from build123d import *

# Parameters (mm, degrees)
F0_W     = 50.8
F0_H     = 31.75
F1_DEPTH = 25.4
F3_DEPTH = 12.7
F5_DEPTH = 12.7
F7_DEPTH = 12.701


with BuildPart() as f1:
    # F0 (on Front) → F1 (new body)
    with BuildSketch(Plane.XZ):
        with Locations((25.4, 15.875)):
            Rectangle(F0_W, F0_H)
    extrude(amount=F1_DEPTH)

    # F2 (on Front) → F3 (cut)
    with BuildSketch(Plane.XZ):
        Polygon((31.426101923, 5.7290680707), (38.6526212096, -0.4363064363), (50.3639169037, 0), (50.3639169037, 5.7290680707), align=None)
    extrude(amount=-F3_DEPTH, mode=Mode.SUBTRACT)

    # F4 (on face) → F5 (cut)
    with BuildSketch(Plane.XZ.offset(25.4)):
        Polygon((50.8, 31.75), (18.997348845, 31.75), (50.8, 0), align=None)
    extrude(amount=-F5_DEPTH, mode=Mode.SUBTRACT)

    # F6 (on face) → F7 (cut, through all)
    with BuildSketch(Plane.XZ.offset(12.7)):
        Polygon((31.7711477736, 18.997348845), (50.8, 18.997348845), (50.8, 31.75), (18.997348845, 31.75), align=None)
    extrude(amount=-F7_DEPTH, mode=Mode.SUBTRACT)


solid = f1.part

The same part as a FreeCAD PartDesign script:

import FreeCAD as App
import Part
import Sketcher

V = App.Vector
Q = App.Units.Quantity


def add_polygon(sketch, points):
    """Adds a closed chain of lines whose ends are joined by coincident constraints."""
    first, n = sketch.GeometryCount, len(points)
    for a, b in zip(points, points[1:] + points[:1]):
        sketch.addGeometry(Part.LineSegment(App.Vector(*a, 0), App.Vector(*b, 0)), False)
    for i in range(n):
        sketch.addConstraint(Sketcher.Constraint("Coincident", first + i, 2, first + (i + 1) % n, 1))

doc = App.newDocument("Part")
params = doc.addObject("Spreadsheet::Sheet", "Params")
for row, (alias, value) in enumerate([
    ("sketch1_width", "2 in"),
    ("sketch1_height", "1.25 in"),
    ("pad1_length", "1 in"),
    ("pocket1_length", "0.5 in"),
    ("sketch3_height", "1.25 in"),
    ("pocket2_length", "0.5 in"),
], start=1):
    params.set(f"A{row}", alias)
    params.set(f"B{row}", "=" + value)
    params.setAlias(f"B{row}", alias)

body = doc.addObject("PartDesign::Body", "Body")

sketch1 = body.newObject("Sketcher::SketchObject", "Sketch")
sketch1.AttachmentSupport = (doc.getObject("XZ_Plane"), [""])
sketch1.MapMode = "FlatFace"
add_polygon(sketch1, [(0, 32), (0, 0), (51, 0), (51, 32)])
sketch1.addConstraint(Sketcher.Constraint("Vertical", 0))
sketch1.addConstraint(Sketcher.Constraint("Horizontal", 1))
sketch1.addConstraint(Sketcher.Constraint("Vertical", 2))
sketch1.addConstraint(Sketcher.Constraint("Horizontal", 3))
sketch1.addConstraint(Sketcher.Constraint("Coincident", 0, 2, -1, 1))
sketch1.addConstraint(Sketcher.Constraint("DistanceX", 1, 1, 1, 2, Q("2 in")))
sketch1.addConstraint(Sketcher.Constraint("DistanceY", 0, 2, 0, 1, Q("1.25 in")))
sketch1.setExpression("Constraints[9]", "Params.sketch1_width")
sketch1.setExpression("Constraints[10]", "Params.sketch1_height")
pad1 = body.newObject("PartDesign::Pad", "Pad")
pad1.Profile = sketch1
pad1.setExpression("Length", "Params.pad1_length")

sketch2 = body.newObject("Sketcher::SketchObject", "Sketch001")
sketch2.AttachmentSupport = (doc.getObject("XZ_Plane"), [""])
sketch2.MapMode = "FlatFace"
add_polygon(sketch2, [(31, 6), (39, 0), (50, 0), (50, 6)])
sketch2.addConstraint(Sketcher.Constraint("Vertical", 2))
sketch2.addConstraint(Sketcher.Constraint("Horizontal", 3))
sketch2.addConstraint(Sketcher.Constraint("PointOnObject", 1, 2, -1))
sketch2.addConstraint(Sketcher.Constraint("DistanceY", 2, 1, 2, 2, 5.729068))
sketch2.addConstraint(Sketcher.Constraint("DistanceX", -1, 1, 3, 2, 31.426102))
sketch2.addConstraint(Sketcher.Constraint("Distance", 0, 9.49918))
sketch2.addConstraint(Sketcher.Constraint("Distance", 1, 11.71942))
sketch2.addConstraint(Sketcher.Constraint("DistanceX", 3, 2, 3, 1, 18.937815))
pocket1 = body.newObject("PartDesign::Pocket", "Pocket")
pocket1.Profile = sketch2
pocket1.setExpression("Length", "Params.pocket1_length")

sketch3 = body.newObject("Sketcher::SketchObject", "Sketch002")
sketch3.AttachmentSupport = (doc.getObject("XZ_Plane"), [""])
sketch3.MapMode = "FlatFace"
sketch3.AttachmentOffset = App.Placement(V(0, 0, 1 * 25.4), App.Rotation())
add_polygon(sketch3, [(51, 32), (19, 32), (51, 0)])
sketch3.addConstraint(Sketcher.Constraint("Horizontal", 0))
sketch3.addConstraint(Sketcher.Constraint("Vertical", 2))
sketch3.addConstraint(Sketcher.Constraint("PointOnObject", 1, 2, -1))
sketch3.addConstraint(Sketcher.Constraint("DistanceX", -1, 1, 1, 2, Q("2 in")))
sketch3.addConstraint(Sketcher.Constraint("DistanceY", 2, 1, 2, 2, Q("1.25 in")))
sketch3.addConstraint(Sketcher.Constraint("DistanceX", 0, 2, 0, 1, 31.802651))
sketch3.setExpression("Constraints[7]", "Params.sketch3_height")
pocket2 = body.newObject("PartDesign::Pocket", "Pocket001")
pocket2.Profile = sketch3
pocket2.setExpression("Length", "Params.pocket2_length")

sketch4 = body.newObject("Sketcher::SketchObject", "Sketch003")
sketch4.AttachmentSupport = (doc.getObject("XZ_Plane"), [""])
sketch4.MapMode = "FlatFace"
sketch4.AttachmentOffset = App.Placement(V(0, 0, 0.5 * 25.4), App.Rotation())
add_polygon(sketch4, [(32, 19), (51, 19), (51, 32), (19, 32)])
sketch4.addConstraint(Sketcher.Constraint("Horizontal", 0))
sketch4.addConstraint(Sketcher.Constraint("Vertical", 1))
sketch4.addConstraint(Sketcher.Constraint("Horizontal", 2))
sketch4.addConstraint(Sketcher.Constraint("DistanceX", -1, 1, 0, 2, Q("2 in")))
sketch4.addConstraint(Sketcher.Constraint("DistanceY", -1, 1, 1, 2, Q("1.25 in")))
sketch4.addConstraint(Sketcher.Constraint("DistanceX", 2, 2, 2, 1, 31.802651))
sketch4.addConstraint(Sketcher.Constraint("DistanceY", 1, 1, 1, 2, 12.752651))
sketch4.addConstraint(Sketcher.Constraint("DistanceX", 2, 2, 3, 2, 12.773799))
pocket3 = body.newObject("PartDesign::Pocket", "Pocket002")
pocket3.Profile = sketch4
pocket3.Type = "ThroughAll"

doc.recompute()
